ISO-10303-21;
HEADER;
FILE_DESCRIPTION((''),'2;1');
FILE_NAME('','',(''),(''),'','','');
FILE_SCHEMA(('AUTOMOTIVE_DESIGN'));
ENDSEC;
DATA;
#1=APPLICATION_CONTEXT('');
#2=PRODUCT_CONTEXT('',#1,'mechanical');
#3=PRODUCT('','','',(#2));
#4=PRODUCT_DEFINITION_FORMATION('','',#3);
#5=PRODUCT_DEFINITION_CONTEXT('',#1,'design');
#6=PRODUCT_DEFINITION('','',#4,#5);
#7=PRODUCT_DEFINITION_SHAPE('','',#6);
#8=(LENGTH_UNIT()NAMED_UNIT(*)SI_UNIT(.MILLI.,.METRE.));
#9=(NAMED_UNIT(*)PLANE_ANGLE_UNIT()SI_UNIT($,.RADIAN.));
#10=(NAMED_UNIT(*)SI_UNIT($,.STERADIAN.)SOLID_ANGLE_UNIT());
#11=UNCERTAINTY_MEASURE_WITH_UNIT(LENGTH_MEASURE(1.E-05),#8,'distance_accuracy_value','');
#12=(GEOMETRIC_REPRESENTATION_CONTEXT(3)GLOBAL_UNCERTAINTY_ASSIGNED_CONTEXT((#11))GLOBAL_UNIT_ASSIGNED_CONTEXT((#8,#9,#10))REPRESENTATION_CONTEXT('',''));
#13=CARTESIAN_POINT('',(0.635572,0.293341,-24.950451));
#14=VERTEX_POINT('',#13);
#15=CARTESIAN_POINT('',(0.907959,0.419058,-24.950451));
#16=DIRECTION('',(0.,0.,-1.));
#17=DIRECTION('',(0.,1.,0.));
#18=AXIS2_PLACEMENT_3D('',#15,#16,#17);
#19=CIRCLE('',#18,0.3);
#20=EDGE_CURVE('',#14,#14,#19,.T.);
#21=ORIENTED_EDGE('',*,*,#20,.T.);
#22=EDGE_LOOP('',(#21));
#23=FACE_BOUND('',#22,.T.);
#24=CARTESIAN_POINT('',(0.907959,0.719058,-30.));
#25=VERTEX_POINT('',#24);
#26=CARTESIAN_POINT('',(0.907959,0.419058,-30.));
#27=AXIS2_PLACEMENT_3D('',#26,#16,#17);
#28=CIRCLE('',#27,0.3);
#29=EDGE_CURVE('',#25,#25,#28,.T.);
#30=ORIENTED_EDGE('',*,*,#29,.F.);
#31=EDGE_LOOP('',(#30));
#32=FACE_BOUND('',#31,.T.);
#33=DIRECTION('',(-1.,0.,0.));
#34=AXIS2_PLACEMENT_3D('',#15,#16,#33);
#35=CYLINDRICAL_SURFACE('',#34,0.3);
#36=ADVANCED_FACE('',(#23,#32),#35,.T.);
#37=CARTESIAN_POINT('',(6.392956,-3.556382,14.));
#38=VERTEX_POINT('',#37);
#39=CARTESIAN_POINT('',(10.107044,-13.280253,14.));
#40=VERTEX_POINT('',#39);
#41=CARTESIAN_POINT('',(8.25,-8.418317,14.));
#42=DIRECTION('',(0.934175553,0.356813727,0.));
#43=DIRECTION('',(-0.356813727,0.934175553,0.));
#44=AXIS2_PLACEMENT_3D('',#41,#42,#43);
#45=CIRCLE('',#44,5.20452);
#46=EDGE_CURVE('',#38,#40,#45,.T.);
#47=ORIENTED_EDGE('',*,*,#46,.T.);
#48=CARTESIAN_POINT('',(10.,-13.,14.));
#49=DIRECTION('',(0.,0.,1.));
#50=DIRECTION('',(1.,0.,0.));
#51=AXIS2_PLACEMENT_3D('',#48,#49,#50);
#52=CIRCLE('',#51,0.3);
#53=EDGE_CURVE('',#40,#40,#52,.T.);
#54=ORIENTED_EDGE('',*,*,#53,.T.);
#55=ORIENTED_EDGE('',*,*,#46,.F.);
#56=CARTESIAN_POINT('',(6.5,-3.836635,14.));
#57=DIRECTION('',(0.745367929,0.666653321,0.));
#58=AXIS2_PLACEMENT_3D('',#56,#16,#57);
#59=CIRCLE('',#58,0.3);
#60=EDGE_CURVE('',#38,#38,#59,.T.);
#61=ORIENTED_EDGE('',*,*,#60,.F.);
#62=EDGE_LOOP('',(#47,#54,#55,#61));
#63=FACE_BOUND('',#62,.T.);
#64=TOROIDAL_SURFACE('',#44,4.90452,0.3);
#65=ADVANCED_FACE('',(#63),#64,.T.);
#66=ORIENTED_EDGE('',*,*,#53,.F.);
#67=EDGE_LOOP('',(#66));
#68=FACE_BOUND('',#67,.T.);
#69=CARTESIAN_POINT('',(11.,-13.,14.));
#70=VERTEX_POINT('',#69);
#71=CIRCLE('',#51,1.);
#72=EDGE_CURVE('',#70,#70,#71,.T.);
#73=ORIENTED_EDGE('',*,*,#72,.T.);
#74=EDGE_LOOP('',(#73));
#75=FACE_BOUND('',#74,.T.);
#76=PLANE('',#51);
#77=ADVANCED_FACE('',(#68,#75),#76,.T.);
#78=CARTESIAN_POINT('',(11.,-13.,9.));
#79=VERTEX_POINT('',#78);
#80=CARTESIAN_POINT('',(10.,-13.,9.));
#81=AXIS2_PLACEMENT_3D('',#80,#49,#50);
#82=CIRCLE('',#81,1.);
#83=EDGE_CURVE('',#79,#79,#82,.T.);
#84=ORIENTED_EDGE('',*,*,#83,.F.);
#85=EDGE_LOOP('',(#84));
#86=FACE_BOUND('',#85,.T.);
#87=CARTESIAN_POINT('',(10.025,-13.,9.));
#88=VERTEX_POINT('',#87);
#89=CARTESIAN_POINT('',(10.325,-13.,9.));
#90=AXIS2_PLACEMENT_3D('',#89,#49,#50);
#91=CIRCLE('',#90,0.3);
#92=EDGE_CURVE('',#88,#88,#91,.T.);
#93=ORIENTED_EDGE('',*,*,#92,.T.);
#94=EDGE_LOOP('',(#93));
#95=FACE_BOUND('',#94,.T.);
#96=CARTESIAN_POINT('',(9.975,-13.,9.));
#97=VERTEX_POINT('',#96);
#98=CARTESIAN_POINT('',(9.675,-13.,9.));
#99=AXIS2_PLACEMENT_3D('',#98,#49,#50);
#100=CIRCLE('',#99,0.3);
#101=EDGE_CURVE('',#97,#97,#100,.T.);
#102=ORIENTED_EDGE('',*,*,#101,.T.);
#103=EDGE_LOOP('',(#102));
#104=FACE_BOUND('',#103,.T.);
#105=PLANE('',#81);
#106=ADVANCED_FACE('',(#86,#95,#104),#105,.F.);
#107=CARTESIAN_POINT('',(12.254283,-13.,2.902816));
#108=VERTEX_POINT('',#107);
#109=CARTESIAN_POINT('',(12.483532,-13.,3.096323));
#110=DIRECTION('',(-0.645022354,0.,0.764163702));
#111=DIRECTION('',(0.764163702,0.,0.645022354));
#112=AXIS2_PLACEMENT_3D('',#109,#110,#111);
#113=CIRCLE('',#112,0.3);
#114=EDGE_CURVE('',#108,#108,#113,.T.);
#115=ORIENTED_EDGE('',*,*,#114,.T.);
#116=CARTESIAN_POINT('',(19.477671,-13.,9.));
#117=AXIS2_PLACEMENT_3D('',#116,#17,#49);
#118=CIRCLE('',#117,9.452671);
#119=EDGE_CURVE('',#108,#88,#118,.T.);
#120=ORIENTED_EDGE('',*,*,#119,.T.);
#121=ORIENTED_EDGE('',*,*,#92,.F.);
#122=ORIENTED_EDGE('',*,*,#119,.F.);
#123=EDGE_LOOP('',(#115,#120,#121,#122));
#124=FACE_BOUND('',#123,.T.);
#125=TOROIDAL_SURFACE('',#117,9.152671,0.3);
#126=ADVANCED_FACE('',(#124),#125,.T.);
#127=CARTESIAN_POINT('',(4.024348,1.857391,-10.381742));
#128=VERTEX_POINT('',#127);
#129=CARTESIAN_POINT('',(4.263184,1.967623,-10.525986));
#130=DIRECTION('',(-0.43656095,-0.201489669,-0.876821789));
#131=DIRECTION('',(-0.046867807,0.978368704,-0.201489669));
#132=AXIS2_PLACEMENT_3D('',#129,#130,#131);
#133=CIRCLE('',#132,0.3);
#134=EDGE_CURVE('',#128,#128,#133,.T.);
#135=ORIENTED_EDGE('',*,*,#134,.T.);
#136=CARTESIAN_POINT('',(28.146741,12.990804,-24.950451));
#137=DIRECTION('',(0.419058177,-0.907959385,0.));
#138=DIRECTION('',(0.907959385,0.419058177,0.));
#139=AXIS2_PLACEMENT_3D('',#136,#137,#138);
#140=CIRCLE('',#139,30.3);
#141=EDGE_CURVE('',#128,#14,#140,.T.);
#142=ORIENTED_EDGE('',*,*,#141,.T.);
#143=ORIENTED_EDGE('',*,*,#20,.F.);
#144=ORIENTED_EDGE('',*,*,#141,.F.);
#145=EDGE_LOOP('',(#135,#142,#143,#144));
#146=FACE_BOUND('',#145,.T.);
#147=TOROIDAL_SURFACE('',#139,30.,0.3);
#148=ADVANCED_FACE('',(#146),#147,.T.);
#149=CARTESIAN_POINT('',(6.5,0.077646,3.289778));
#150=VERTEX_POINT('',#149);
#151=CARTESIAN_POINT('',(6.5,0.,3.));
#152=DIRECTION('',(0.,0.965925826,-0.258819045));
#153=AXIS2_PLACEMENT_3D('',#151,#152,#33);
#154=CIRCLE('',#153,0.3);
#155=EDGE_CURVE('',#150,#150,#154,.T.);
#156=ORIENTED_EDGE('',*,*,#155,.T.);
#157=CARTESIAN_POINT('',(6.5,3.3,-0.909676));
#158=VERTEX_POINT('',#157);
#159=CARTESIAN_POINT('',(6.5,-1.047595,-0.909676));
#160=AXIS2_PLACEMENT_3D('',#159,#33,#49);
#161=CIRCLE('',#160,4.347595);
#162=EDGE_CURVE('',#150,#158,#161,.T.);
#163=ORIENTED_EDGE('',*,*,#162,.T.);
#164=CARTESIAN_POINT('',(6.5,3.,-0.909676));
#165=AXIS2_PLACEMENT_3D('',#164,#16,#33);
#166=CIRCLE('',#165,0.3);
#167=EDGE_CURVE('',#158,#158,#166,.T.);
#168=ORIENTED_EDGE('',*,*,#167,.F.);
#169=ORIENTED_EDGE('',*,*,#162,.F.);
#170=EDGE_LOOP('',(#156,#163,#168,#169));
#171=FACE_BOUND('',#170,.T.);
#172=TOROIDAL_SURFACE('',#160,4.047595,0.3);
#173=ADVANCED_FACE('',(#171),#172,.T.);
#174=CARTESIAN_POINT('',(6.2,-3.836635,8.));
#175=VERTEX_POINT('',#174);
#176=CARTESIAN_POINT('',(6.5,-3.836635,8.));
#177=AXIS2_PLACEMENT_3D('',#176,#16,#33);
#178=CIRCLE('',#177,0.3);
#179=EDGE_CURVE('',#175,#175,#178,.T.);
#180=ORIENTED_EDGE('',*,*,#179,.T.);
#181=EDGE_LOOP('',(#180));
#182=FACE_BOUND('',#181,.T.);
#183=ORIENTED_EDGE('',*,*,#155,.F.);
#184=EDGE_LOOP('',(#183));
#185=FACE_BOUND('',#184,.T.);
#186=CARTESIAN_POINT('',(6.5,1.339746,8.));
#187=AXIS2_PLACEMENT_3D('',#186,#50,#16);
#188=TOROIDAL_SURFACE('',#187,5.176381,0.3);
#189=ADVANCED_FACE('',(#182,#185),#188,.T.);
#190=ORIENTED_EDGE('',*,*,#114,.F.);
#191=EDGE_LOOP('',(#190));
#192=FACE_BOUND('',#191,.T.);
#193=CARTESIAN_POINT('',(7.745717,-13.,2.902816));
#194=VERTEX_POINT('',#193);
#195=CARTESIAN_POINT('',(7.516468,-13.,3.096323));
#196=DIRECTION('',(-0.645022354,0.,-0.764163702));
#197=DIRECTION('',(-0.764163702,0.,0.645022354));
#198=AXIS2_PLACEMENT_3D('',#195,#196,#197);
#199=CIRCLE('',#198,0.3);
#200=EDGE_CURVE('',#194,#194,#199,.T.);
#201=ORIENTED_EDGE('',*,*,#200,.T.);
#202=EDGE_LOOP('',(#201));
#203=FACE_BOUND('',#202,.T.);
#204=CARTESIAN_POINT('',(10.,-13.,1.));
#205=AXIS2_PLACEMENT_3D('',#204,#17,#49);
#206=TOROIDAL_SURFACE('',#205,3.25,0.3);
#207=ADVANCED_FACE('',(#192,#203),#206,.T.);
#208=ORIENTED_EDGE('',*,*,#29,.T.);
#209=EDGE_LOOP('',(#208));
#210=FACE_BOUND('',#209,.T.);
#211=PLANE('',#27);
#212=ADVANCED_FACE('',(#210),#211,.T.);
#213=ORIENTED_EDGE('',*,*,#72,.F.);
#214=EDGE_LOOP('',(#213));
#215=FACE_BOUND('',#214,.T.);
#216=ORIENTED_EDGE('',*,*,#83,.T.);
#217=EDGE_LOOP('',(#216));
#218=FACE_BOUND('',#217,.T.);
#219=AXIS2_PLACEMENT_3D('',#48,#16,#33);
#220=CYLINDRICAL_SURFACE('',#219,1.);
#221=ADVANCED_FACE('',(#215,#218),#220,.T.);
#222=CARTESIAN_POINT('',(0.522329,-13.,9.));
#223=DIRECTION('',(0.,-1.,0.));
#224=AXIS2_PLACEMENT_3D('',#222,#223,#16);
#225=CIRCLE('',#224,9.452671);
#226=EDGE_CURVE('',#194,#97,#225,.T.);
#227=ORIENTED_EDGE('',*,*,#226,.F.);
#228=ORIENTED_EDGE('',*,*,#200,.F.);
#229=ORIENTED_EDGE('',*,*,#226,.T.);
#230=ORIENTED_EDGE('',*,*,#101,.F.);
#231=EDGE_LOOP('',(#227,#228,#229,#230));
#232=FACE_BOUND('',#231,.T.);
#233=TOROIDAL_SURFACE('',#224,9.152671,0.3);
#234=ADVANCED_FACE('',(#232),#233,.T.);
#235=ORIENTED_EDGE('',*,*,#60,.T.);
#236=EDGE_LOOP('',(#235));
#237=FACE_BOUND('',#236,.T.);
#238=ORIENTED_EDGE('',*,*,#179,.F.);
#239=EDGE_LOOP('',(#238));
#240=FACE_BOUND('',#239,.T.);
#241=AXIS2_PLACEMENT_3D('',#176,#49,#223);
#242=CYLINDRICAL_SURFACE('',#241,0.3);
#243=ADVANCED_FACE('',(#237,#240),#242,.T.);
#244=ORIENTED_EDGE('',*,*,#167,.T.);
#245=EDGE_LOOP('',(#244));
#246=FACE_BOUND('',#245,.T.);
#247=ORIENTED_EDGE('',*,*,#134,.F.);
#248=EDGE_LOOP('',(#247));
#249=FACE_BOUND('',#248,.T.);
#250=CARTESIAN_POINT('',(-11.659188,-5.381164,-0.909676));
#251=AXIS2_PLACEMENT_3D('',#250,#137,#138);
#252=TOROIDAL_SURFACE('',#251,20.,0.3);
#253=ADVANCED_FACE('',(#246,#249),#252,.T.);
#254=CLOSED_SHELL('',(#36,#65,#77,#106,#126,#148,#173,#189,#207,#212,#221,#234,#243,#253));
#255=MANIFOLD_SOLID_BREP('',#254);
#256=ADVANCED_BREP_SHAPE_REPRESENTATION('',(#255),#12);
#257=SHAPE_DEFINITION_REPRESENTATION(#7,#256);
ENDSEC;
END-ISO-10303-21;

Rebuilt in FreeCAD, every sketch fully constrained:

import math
import FreeCAD as App
import Part
import Sketcher

V = App.Vector

doc = App.newDocument("Part")
body = doc.addObject("PartDesign::Body", "Body")

sketch1 = doc.addObject("Sketcher::SketchObject", "Sketch")
body.addObject(sketch1)
sketch1.AttachmentSupport = (doc.XY_Plane, [""])
sketch1.MapMode = "FlatFace"
sketch1.AttachmentOffset = App.Placement(V(0, 0, 9), App.Rotation())
sketch1.addGeometry(Part.Circle(V(10.325, -13, 0), V(0, 0, 1), 0.3), False)
sketch1.addConstraint([
    Sketcher.Constraint("Diameter", 0, 0.6),
    Sketcher.Constraint("DistanceY", 0, 3, -1, 1, 13.0),
    Sketcher.Constraint("DistanceX", -1, 1, 0, 3, 10.325),
])

sketch2 = doc.addObject("Sketcher::SketchObject", "Sketch001")
body.addObject(sketch2)
sketch2.AttachmentSupport = (doc.XZ_Plane, [""])
sketch2.MapMode = "FlatFace"
sketch2.AttachmentOffset = App.Placement(V(0, 0, 13), App.Rotation())
sketch2.addGeometry([
    Part.ArcOfCircle(Part.Circle(V(19.477671, 9, 0), V(0, 0, 1), 9.152671), math.radians(180), math.radians(220.167351)),
    Part.ArcOfCircle(Part.Circle(V(10, 1, 0), V(0, 0, 1), 3.25), math.radians(139.832649), math.radians(400.167351)),
    Part.ArcOfCircle(Part.Circle(V(0.522329, 9, 0), V(0, 0, 1), 9.152671), math.radians(-40.167351), math.radians(0)),
], False)
sketch2.addConstraint([
    Sketcher.Constraint("Tangent", 0, 2, 1, 2),
    Sketcher.Constraint("Tangent", 1, 1, 2, 1),
    Sketcher.Constraint("Equal", 0, 2),
    Sketcher.Constraint("Horizontal", 0, 3, 2, 3),
    Sketcher.Constraint("Horizontal", 2, 3, 0, 1),
    Sketcher.Constraint("Horizontal", 0, 1, 2, 2),
    Sketcher.Constraint("Radius", 1, 3.25),
    Sketcher.Constraint("DistanceY", -1, 1, 0, 3, 9.0),
    Sketcher.Constraint("DistanceX", -1, 1, 1, 3, 10.0),
    Sketcher.Constraint("DistanceY", -1, 1, 1, 3, 1.0),
    Sketcher.Constraint("Radius", 0, 9.152671),
])
doc.recompute()

additivepipe = doc.addObject("PartDesign::AdditivePipe", "AdditivePipe")
body.addObject(additivepipe)
additivepipe.Profile = sketch1
additivepipe.Spine = (sketch2, ["Edge1", "Edge2", "Edge3"])

sketch3 = doc.addObject("Sketcher::SketchObject", "Sketch002")
body.addObject(sketch3)
sketch3.AttachmentSupport = (doc.XY_Plane, [""])
sketch3.MapMode = "FlatFace"
sketch3.AttachmentOffset = App.Placement(V(0, 0, 9), App.Rotation())
sketch3.addGeometry(Part.Circle(V(10, -13, 0), V(0, 0, 1), 1), False)
sketch3.addConstraint([
    Sketcher.Constraint("Diameter", 0, 2.0),
    Sketcher.Constraint("DistanceX", -1, 1, 0, 3, 10.0),
    Sketcher.Constraint("DistanceY", 0, 3, -1, 1, 13.0),
])
pad1 = doc.addObject("PartDesign::Pad", "Pad")
body.addObject(pad1)
pad1.Profile = sketch3
pad1.Length = 5

sketch4 = doc.addObject("Sketcher::SketchObject", "Sketch003")
body.addObject(sketch4)
sketch4.AttachmentSupport = (doc.XY_Plane, [""])
sketch4.MapMode = "FlatFace"
sketch4.AttachmentOffset = App.Placement(V(0, 0, 14), App.Rotation())
sketch4.addGeometry(Part.Circle(V(10, -13, 0), V(0, 0, 1), 0.3), False)
sketch4.addConstraint([
    Sketcher.Constraint("Diameter", 0, 0.6),
    Sketcher.Constraint("DistanceX", -1, 1, 0, 3, 10.0),
    Sketcher.Constraint("DistanceY", 0, 3, -1, 1, 13.0),
])

sketch5 = doc.addObject("Sketcher::SketchObject", "Sketch004")
body.addObject(sketch5)
sketch5.Placement = App.Placement(V(4.393593, 1.678158, 0), App.Rotation(V(0.356813727, -0.934175553, 0), V(0, 0, 1), V(-0.934175553, -0.356813727, 0), "ZXY"))
sketch5.addGeometry(Part.ArcOfCircle(Part.Circle(V(10.8079, 14, 0), V(0, 0, 1), 4.90452), math.radians(0), math.radians(180)), False)
sketch5.addConstraint([
    Sketcher.Constraint("DistanceY", -1, 1, 0, 3, 14.0),
    Sketcher.Constraint("DistanceY", -1, 1, 0, 1, 14.0),
    Sketcher.Constraint("DistanceY", -1, 1, 0, 2, 14.0),
    Sketcher.Constraint("Radius", 0, 4.90452),
    Sketcher.Constraint("DistanceX", -1, 1, 0, 3, 10.8079),
])
doc.recompute()

additivepipe2 = doc.addObject("PartDesign::AdditivePipe", "AdditivePipe001")
body.addObject(additivepipe2)
additivepipe2.Profile = sketch4
additivepipe2.Spine = (sketch5, ["Edge1"])

sketch6 = doc.addObject("Sketcher::SketchObject", "Sketch005")
body.addObject(sketch6)
sketch6.AttachmentSupport = (doc.XY_Plane, [""])
sketch6.MapMode = "FlatFace"
sketch6.AttachmentOffset = App.Placement(V(0, 0, 14), App.Rotation())
sketch6.addGeometry(Part.Circle(V(6.5, -3.836635, 0), V(0, 0, 1), 0.3), False)
sketch6.addConstraint([
    Sketcher.Constraint("Diameter", 0, 0.6),
    Sketcher.Constraint("DistanceX", -1, 1, 0, 3, 6.5),
    Sketcher.Constraint("DistanceY", 0, 3, -1, 1, 3.836635),
])

sketch7 = doc.addObject("Sketcher::SketchObject", "Sketch006")
body.addObject(sketch7)
sketch7.AttachmentSupport = (doc.YZ_Plane, [""])
sketch7.MapMode = "FlatFace"
sketch7.AttachmentOffset = App.Placement(V(0, 0, 6.5), App.Rotation())
sketch7.addGeometry([
    Part.LineSegment(V(-3.836635, 14, 0), V(-3.836635, 8, 0)),
    Part.ArcOfCircle(Part.Circle(V(1.339746, 8, 0), V(0, 0, 1), 5.176381), math.radians(-180), math.radians(-105)),
    Part.ArcOfCircle(Part.Circle(V(-1.047595, -0.909676, 0), V(0, 0, 1), 4.047595), math.radians(0), math.radians(75)),
], False)
sketch7.addConstraint([
    Sketcher.Constraint("Tangent", 0, 2, 1, 1),
    Sketcher.Constraint("Tangent", 1, 2, 2, 2),
    Sketcher.Constraint("Vertical", 0),
    Sketcher.Constraint("PointOnObject", 1, 2, -2),
    Sketcher.Constraint("DistanceY", 0, 2, 0, 1, 6.0),
    Sketcher.Constraint("DistanceY", -1, 1, 1, 3, 8.0),
    Sketcher.Constraint("DistanceY", -1, 1, 1, 2, 3.0),
    Sketcher.Constraint("DistanceX", -1, 1, 2, 1, 3.0),
    Sketcher.Constraint("Radius", 1, 5.176381),
    Sketcher.Constraint("DistanceY", 2, 1, -1, 1, 0.909676),
])
doc.recompute()

additivepipe3 = doc.addObject("PartDesign::AdditivePipe", "AdditivePipe002")
body.addObject(additivepipe3)
additivepipe3.Profile = sketch6
additivepipe3.Spine = (sketch7, ["Edge1", "Edge2", "Edge3"])

sketch8 = doc.addObject("Sketcher::SketchObject", "Sketch007")
body.addObject(sketch8)
sketch8.AttachmentSupport = (doc.XY_Plane, [""])
sketch8.MapMode = "FlatFace"
sketch8.AttachmentOffset = App.Placement(V(0, 0, -0.909676), App.Rotation())
sketch8.addGeometry(Part.Circle(V(6.5, 3, 0), V(0, 0, 1), 0.3), False)
sketch8.addConstraint([
    Sketcher.Constraint("Diameter", 0, 0.6),
    Sketcher.Constraint("DistanceY", -1, 1, 0, 3, 3.0),
    Sketcher.Constraint("DistanceX", -1, 1, 0, 3, 6.5),
])

sketch9 = doc.addObject("Sketcher::SketchObject", "Sketch008")
body.addObject(sketch9)
sketch9.Placement = App.Placement(V(0, 0, 0), App.Rotation(V(0.907959385, 0.419058177, 0), V(0, 0, 1.000000001), V(0.419058177, -0.907959385, 0), "ZXY"))
sketch9.addGeometry([
    Part.LineSegment(V(1, -30, 0), V(1, -24.950451, 0)),
    Part.ArcOfCircle(Part.Circle(V(31, -24.950451, 0), V(0, 0, 1), 30), math.radians(151.261323), math.radians(180)),
    Part.ArcOfCircle(Part.Circle(V(-12.841089, -0.909676, 0), V(0, 0, 1), 20), math.radians(-28.738677), math.radians(0)),
], False)
sketch9.addConstraint([
    Sketcher.Constraint("Tangent", 0, 2, 1, 2),
    Sketcher.Constraint("Tangent", 1, 1, 2, 1),
    Sketcher.Constraint("Vertical", 0),
    Sketcher.Constraint("Radius", 1, 30.0),
    Sketcher.Constraint("Radius", 2, 20.0),
    Sketcher.Constraint("DistanceX", -1, 1, 1, 3, 31.0),
    Sketcher.Constraint("DistanceY", 0, 1, -1, 1, 30.0),
    Sketcher.Constraint("DistanceY", 0, 1, 0, 2, 5.049549),
    Sketcher.Constraint("DistanceX", 2, 3, -1, 1, 12.841089),
    Sketcher.Constraint("DistanceY", 1, 1, 2, 2, 9.61631),
])
doc.recompute()

additivepipe4 = doc.addObject("PartDesign::AdditivePipe", "AdditivePipe003")
body.addObject(additivepipe4)
additivepipe4.Profile = sketch8
additivepipe4.Spine = (sketch9, ["Edge1", "Edge2", "Edge3"])

doc.recompute()
